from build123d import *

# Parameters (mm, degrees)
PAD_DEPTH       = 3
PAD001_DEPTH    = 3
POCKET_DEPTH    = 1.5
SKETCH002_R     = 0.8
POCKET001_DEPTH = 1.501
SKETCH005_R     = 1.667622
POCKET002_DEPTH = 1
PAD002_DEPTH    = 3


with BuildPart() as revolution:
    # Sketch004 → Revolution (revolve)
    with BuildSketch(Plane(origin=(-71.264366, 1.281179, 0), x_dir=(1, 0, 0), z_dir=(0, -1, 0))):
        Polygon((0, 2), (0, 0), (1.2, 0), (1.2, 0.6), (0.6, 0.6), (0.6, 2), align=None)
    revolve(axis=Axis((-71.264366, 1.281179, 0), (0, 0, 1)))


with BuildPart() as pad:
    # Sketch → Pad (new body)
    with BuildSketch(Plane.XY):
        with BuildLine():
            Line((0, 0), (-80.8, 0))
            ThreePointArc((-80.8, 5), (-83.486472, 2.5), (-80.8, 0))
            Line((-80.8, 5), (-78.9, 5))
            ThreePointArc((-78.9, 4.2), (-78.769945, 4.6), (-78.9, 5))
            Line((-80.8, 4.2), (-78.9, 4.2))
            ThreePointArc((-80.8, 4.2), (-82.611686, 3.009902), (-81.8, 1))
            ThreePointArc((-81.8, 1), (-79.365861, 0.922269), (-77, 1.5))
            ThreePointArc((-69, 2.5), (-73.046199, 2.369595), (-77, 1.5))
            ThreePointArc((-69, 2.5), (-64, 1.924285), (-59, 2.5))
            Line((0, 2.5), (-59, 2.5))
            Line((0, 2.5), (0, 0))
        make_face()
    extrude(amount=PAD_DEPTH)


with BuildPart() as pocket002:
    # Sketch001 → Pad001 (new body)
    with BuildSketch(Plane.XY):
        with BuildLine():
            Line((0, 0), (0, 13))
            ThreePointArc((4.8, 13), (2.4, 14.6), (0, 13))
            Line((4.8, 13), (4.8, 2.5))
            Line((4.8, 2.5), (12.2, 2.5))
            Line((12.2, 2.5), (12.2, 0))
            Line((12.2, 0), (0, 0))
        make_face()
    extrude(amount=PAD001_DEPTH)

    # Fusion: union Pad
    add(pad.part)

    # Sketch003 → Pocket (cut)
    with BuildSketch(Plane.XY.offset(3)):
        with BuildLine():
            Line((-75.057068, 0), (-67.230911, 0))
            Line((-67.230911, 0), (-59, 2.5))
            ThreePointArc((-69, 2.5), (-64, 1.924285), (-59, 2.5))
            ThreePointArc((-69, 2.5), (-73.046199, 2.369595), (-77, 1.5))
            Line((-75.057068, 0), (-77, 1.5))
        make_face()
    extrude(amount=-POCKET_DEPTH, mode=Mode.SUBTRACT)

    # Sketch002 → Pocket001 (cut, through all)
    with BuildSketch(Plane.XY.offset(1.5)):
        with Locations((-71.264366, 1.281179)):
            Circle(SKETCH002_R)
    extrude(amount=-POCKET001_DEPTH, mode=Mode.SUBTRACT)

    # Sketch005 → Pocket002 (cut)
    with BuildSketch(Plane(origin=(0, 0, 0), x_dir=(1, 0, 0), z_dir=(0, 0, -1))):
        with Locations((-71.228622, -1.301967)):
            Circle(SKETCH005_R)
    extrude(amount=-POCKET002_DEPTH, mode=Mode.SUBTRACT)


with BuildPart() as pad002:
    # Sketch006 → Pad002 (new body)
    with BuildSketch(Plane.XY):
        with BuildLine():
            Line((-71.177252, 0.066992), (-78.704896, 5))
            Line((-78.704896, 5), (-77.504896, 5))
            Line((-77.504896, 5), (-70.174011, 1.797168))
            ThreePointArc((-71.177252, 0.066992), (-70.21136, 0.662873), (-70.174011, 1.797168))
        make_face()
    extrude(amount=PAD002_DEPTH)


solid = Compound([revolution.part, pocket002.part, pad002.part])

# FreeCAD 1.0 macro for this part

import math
import FreeCAD as App
import Part
import Sketcher
from FreeCAD import Vector
Q = App.Units.Quantity

doc = App.newDocument("Part")
body = doc.addObject("PartDesign::Body", "Body")

# Sketch on XZ plane
sketch1 = body.newObject("Sketcher::SketchObject", "Sketch")
sketch1.AttachmentSupport = (doc.getObject("XZ_Plane"), [""])
sketch1.MapMode = "FlatFace"
sketch1.AttachmentOffset = App.Placement(Vector(0, 0, -1.281179), App.Rotation())
sketch1.addGeometry([
    Part.LineSegment(Vector(-71.264366, 2, 0), Vector(-71.264366, 0, 0)),  # 0
    Part.LineSegment(Vector(-71.264366, 0, 0), Vector(-70.064366, 0, 0)),  # 1
    Part.LineSegment(Vector(-70.064366, 0, 0), Vector(-70.064366, 0.6, 0)),  # 2
    Part.LineSegment(Vector(-70.064366, 0.6, 0), Vector(-70.664366, 0.6, 0)),  # 3
    Part.LineSegment(Vector(-70.664366, 0.6, 0), Vector(-70.664366, 2, 0)),  # 4
    Part.LineSegment(Vector(-70.664366, 2, 0), Vector(-71.264366, 2, 0)),  # 5
], False)
sketch1.addGeometry(Part.LineSegment(Vector(-71.264366, 0, 0), Vector(-71.264366, 2, 0)), True)  # axis
sketch1.addConstraint([
    Sketcher.Constraint("Coincident", 0, 2, 1, 1),
    Sketcher.Constraint("Coincident", 1, 2, 2, 1),
    Sketcher.Constraint("Coincident", 2, 2, 3, 1),
    Sketcher.Constraint("Coincident", 3, 2, 4, 1),
    Sketcher.Constraint("Coincident", 4, 2, 5, 1),
    Sketcher.Constraint("Coincident", 5, 2, 0, 1),
    Sketcher.Constraint("Vertical", 0),
    Sketcher.Constraint("Horizontal", 1),
    Sketcher.Constraint("Vertical", 2),
    Sketcher.Constraint("Horizontal", 3),
    Sketcher.Constraint("Vertical", 4),
    Sketcher.Constraint("Horizontal", 5),
    Sketcher.Constraint("Vertical", 6),
    Sketcher.Constraint("Coincident", 6, 1, 0, 2),
    Sketcher.Constraint("PointOnObject", 0, 2, -1),
    Sketcher.Constraint("Horizontal", 4, 2, 6, 2),
    Sketcher.Constraint("Equal", 3, 5),
    Sketcher.Constraint("Equal", 5, 2),
    Sketcher.Constraint("DistanceY", 0, 2, 0, 1, Q("2 mm")),
    Sketcher.Constraint("DistanceX", 1, 1, 1, 2, Q("1.2 mm")),
    Sketcher.Constraint("DistanceX", 0, 2, -1, 1, Q("71.264366 mm")),
])
revolution = body.newObject("PartDesign::Revolution", "Revolution")
revolution.Profile = sketch1
revolution.ReferenceAxis = (sketch1, ["Axis0"])
revolution.Angle = 360
body2 = doc.addObject("PartDesign::Body", "Body001")

# Sketch on XY plane
sketch2 = body2.newObject("Sketcher::SketchObject", "Sketch001")
sketch2.AttachmentSupport = (doc.getObject("XY_Plane001"), [""])
sketch2.MapMode = "FlatFace"
sketch2.addGeometry([
    Part.LineSegment(Vector(-80.8, 0, 0), Vector(0, 0, 0)),  # 0
    Part.LineSegment(Vector(0, 0, 0), Vector(0, 2.5, 0)),  # 1
    Part.LineSegment(Vector(0, 2.5, 0), Vector(-59, 2.5, 0)),  # 2
    Part.ArcOfCircle(Part.Circle(Vector(-64, 23.924274, 0), Vector(0, 0, 1), 21.999989), math.radians(-103.136565), math.radians(-76.863435)),  # 3
    Part.ArcOfCircle(Part.Circle(Vector(-70.317435, -19.46052, 0), Vector(0, 0, 1), 22.000001), math.radians(86.56688), math.radians(107.683153)),  # 4
    Part.ArcOfCircle(Part.Circle(Vector(-80.298315, 9.873828, 0), Vector(0, 0, 1), 8.999994), math.radians(-99.604952), math.radians(-68.501322)),  # 5
    Part.ArcOfCircle(Part.Circle(Vector(-80.98, 2.5, 0), Vector(0, 0, 1), 1.709503), math.radians(83.955917), math.radians(241.336034)),  # 6
    Part.LineSegment(Vector(-80.8, 4.2, 0), Vector(-78.9, 4.2, 0)),  # 7
    Part.ArcOfCircle(Part.Circle(Vector(-79.450097, 4.6, 0), Vector(0, 0, 1), 0.680152), math.radians(-36.022574), math.radians(36.022574)),  # 8
    Part.LineSegment(Vector(-78.9, 5, 0), Vector(-80.8, 5, 0)),  # 9
    Part.ArcOfCircle(Part.Circle(Vector(-80.98, 2.5, 0), Vector(0, 0, 1), 2.506472), math.radians(85.881802), math.radians(274.118198)),  # 10
], False)
sketch2.addConstraint([
    Sketcher.Constraint("Coincident", 0, 2, 1, 1),
    Sketcher.Constraint("Coincident", 1, 2, 2, 1),
    Sketcher.Constraint("Coincident", 2, 2, 3, 2),
    Sketcher.Constraint("Coincident", 3, 1, 4, 1),
    Sketcher.Constraint("Coincident", 4, 2, 5, 2),
    Sketcher.Constraint("Coincident", 5, 1, 6, 2),
    Sketcher.Constraint("Coincident", 6, 1, 7, 1),
    Sketcher.Constraint("Coincident", 7, 2, 8, 1),
    Sketcher.Constraint("Coincident", 8, 2, 9, 1),
    Sketcher.Constraint("Coincident", 9, 2, 10, 1),
    Sketcher.Constraint("Coincident", 10, 2, 0, 1),
    Sketcher.Constraint("Horizontal", 0),
    Sketcher.Constraint("Vertical", 1),
    Sketcher.Constraint("Horizontal", 2),
    Sketcher.Constraint("Horizontal", 7),
    Sketcher.Constraint("Horizontal", 9),
    Sketcher.Constraint("Coincident", 0, 2, -1, 1),
    Sketcher.Constraint("Coincident", 10, 3, 6, 3),
    Sketcher.Constraint("Horizontal", 10, 3, 1, 2),
    Sketcher.Constraint("Horizontal", 2, 2, 3, 1),
    Sketcher.Constraint("Vertical", 7, 2, 8, 2),
    Sketcher.Constraint("Vertical", 6, 1, 9, 2),
    Sketcher.Constraint("Vertical", 9, 2, 10, 2),
    Sketcher.Constraint("Radius", 4, Q("22.000001 mm")),
    Sketcher.Constraint("DistanceX", 2, 2, 2, 1, Q("59 mm")),
    Sketcher.Constraint("DistanceX", 0, 1, 0, 2, Q("80.8 mm")),
    Sketcher.Constraint("DistanceX", 7, 1, 7, 2, Q("1.9 mm")),
    Sketcher.Constraint("DistanceY", 1, 1, 1, 2, Q("2.5 mm")),
    Sketcher.Constraint("DistanceX", 3, 3, -1, 1, Q("64 mm")),
    Sketcher.Constraint("DistanceX", 4, 2, -1, 1, Q("77 mm")),
    Sketcher.Constraint("DistanceY", -1, 1, 5, 1, Q("1 mm")),
    Sketcher.Constraint("DistanceY", 4, 2, 6, 3, Q("1 mm")),
    Sketcher.Constraint("DistanceX", 5, 1, 6, 1, Q("1 mm")),
    Sketcher.Constraint("DistanceY", -1, 1, 8, 3, Q("4.6 mm")),
    Sketcher.Constraint("Radius", 3, Q("21.999989 mm")),
    Sketcher.Constraint("Radius", 8, Q("0.680152 mm")),
    Sketcher.Constraint("Radius", 5, Q("8.999994 mm")),
])
pad1 = body2.newObject("PartDesign::Pad", "Pad")
pad1.Profile = sketch2
pad1.Length = 3
body3 = doc.addObject("PartDesign::Body", "Body002")

# Sketch on XY plane
sketch3 = body3.newObject("Sketcher::SketchObject", "Sketch002")
sketch3.AttachmentSupport = (doc.getObject("XY_Plane002"), [""])
sketch3.MapMode = "FlatFace"
sketch3.addGeometry([
    Part.LineSegment(Vector(0, 13, 0), Vector(0, 0, 0)),  # 0
    Part.LineSegment(Vector(0, 0, 0), Vector(12.2, 0, 0)),  # 1
    Part.LineSegment(Vector(12.2, 0, 0), Vector(12.2, 2.5, 0)),  # 2
    Part.LineSegment(Vector(12.2, 2.5, 0), Vector(4.8, 2.5, 0)),  # 3
    Part.LineSegment(Vector(4.8, 2.5, 0), Vector(4.8, 13, 0)),  # 4
    Part.ArcOfCircle(Part.Circle(Vector(2.4, 12, 0), Vector(0, 0, 1), 2.6), math.radians(22.619865), math.radians(157.380135)),  # 5
], False)
sketch3.addConstraint([
    Sketcher.Constraint("Coincident", 0, 2, 1, 1),
    Sketcher.Constraint("Coincident", 1, 2, 2, 1),
    Sketcher.Constraint("Coincident", 2, 2, 3, 1),
    Sketcher.Constraint("Coincident", 3, 2, 4, 1),
    Sketcher.Constraint("Coincident", 4, 2, 5, 1),
    Sketcher.Constraint("Coincident", 5, 2, 0, 1),
    Sketcher.Constraint("Vertical", 0),
    Sketcher.Constraint("Horizontal", 1),
    Sketcher.Constraint("Vertical", 2),
    Sketcher.Constraint("Horizontal", 3),
    Sketcher.Constraint("Vertical", 4),
    Sketcher.Constraint("Coincident", 0, 2, -1, 1),
    Sketcher.Constraint("Horizontal", 4, 2, 5, 2),
    Sketcher.Constraint("Radius", 5, Q("2.6 mm")),
    Sketcher.Constraint("DistanceY", 0, 2, 0, 1, Q("13 mm")),
    Sketcher.Constraint("DistanceX", 1, 1, 1, 2, Q("12.2 mm")),
    Sketcher.Constraint("DistanceX", 3, 2, 3, 1, Q("7.4 mm")),
    Sketcher.Constraint("DistanceY", 2, 1, 2, 2, Q("2.5 mm")),
])
pad2 = body3.newObject("PartDesign::Pad", "Pad001")
pad2.Profile = sketch3
pad2.Length = 3
doc.recompute()

boolean = body3.newObject("PartDesign::Boolean", "Boolean")
boolean.Type = "Fuse"
boolean.addObjects([body2])

# Sketch on XY plane
sketch4 = body3.newObject("Sketcher::SketchObject", "Sketch003")
sketch4.AttachmentSupport = (doc.getObject("XY_Plane002"), [""])
sketch4.MapMode = "FlatFace"
sketch4.AttachmentOffset = App.Placement(Vector(0, 0, 3), App.Rotation())
sketch4.addGeometry([
    Part.LineSegment(Vector(-75.057068, 0, 0), Vector(-67.230911, 0, 0)),  # 0
    Part.LineSegment(Vector(-67.230911, 0, 0), Vector(-59, 2.5, 0)),  # 1
    Part.ArcOfCircle(Part.Circle(Vector(-64, 23.924274, 0), Vector(0, 0, 1), 21.999989), math.radians(-103.136565), math.radians(-76.863435)),  # 2
    Part.ArcOfCircle(Part.Circle(Vector(-70.317435, -19.46052, 0), Vector(0, 0, 1), 22.000001), math.radians(86.56688), math.radians(107.683153)),  # 3
    Part.LineSegment(Vector(-77, 1.5, 0), Vector(-75.057068, 0, 0)),  # 4
], False)
sketch4.addConstraint([
    Sketcher.Constraint("Coincident", 0, 2, 1, 1),
    Sketcher.Constraint("Coincident", 1, 2, 2, 2),
    Sketcher.Constraint("Coincident", 2, 1, 3, 1),
    Sketcher.Constraint("Coincident", 3, 2, 4, 1),
    Sketcher.Constraint("Coincident", 4, 2, 0, 1),
    Sketcher.Constraint("Horizontal", 0),
    Sketcher.Constraint("PointOnObject", 0, 2, -1),
    Sketcher.Constraint("Horizontal", 1, 2, 2, 1),
    Sketcher.Constraint("Radius", 3, Q("22.000001 mm")),
    Sketcher.Constraint("DistanceX", 2, 3, -1, 1, Q("64 mm")),
    Sketcher.Constraint("DistanceX", 1, 2, -1, 1, Q("59 mm")),
    Sketcher.Constraint("DistanceX", 3, 2, -1, 1, Q("77 mm")),
    Sketcher.Constraint("DistanceY", 3, 2, 2, 1, Q("1 mm")),
    Sketcher.Constraint("DistanceY", -1, 1, 1, 2, Q("2.5 mm")),
    Sketcher.Constraint("Radius", 2, Q("21.999989 mm")),
    Sketcher.Constraint("DistanceX", 0, 1, 0, 2, Q("7.826157 mm")),
    Sketcher.Constraint("DistanceX", 0, 2, -1, 1, Q("67.230911 mm")),
])
pocket1 = body3.newObject("PartDesign::Pocket", "Pocket")
pocket1.Profile = sketch4
pocket1.Length = 1.5

# Sketch on XY plane
sketch5 = body3.newObject("Sketcher::SketchObject", "Sketch004")
sketch5.AttachmentSupport = (doc.getObject("XY_Plane002"), [""])
sketch5.MapMode = "FlatFace"
sketch5.AttachmentOffset = App.Placement(Vector(0, 0, 1.5), App.Rotation())
sketch5.addGeometry(Part.Circle(Vector(-71.264366, 1.281179, 0), Vector(0, 0, 1), 0.8), False)
sketch5.addConstraint([
    Sketcher.Constraint("Diameter", 0, Q("1.6 mm")),
    Sketcher.Constraint("DistanceY", -1, 1, 0, 3, Q("1.281179 mm")),
    Sketcher.Constraint("DistanceX", 0, 3, -1, 1, Q("71.264366 mm")),
])
pocket2 = body3.newObject("PartDesign::Pocket", "Pocket001")
pocket2.Profile = sketch5
pocket2.Type = "ThroughAll"

# Sketch on XY plane
sketch6 = body3.newObject("Sketcher::SketchObject", "Sketch005")
sketch6.AttachmentSupport = (doc.getObject("XY_Plane002"), [""])
sketch6.MapMode = "FlatFace"
sketch6.addGeometry(Part.Circle(Vector(-71.228622, 1.301967, 0), Vector(0, 0, 1), 1.667622), False)
sketch6.addConstraint([
    Sketcher.Constraint("Diameter", 0, Q("3.335244 mm")),
    Sketcher.Constraint("DistanceX", 0, 3, -1, 1, Q("71.228622 mm")),
    Sketcher.Constraint("DistanceY", -1, 1, 0, 3, Q("1.301967 mm")),
])
pocket3 = body3.newObject("PartDesign::Pocket", "Pocket002")
pocket3.Profile = sketch6
pocket3.Length = 1
pocket3.Reversed = True
body4 = doc.addObject("PartDesign::Body", "Body003")

# Sketch on XY plane
sketch7 = body4.newObject("Sketcher::SketchObject", "Sketch006")
sketch7.AttachmentSupport = (doc.getObject("XY_Plane003"), [""])
sketch7.MapMode = "FlatFace"
sketch7.addGeometry([
    Part.LineSegment(Vector(-78.704896, 5, 0), Vector(-71.177252, 0.066992, 0)),
    Part.ArcOfCircle(Part.Circle(Vector(-71.249466, 1.264817, 0), Vector(0, 0, 1), 1.2), math.radians(-86.549972), math.radians(26.335446)),
    Part.LineSegment(Vector(-70.174011, 1.797168, 0), Vector(-77.504896, 5, 0)),
    Part.LineSegment(Vector(-77.504896, 5, 0), Vector(-78.704896, 5, 0)),
], False)
sketch7.addConstraint([
    Sketcher.Constraint("Coincident", 0, 2, 1, 1),
    Sketcher.Constraint("Coincident", 1, 2, 2, 1),
    Sketcher.Constraint("Coincident", 2, 2, 3, 1),
    Sketcher.Constraint("Coincident", 3, 2, 0, 1),
    Sketcher.Constraint("Horizontal", 3),
    Sketcher.Constraint("Radius", 1, Q("1.2 mm")),
    Sketcher.Constraint("Distance", 0, Q("9 mm")),
    Sketcher.Constraint("Distance", 2, Q("8 mm")),
    Sketcher.Constraint("DistanceX", 3, 2, 3, 1, Q("1.2 mm")),
    Sketcher.Constraint("DistanceY", -1, 1, 2, 2, Q("5 mm")),
    Sketcher.Constraint("DistanceX", 0, 2, -1, 1, Q("71.177252 mm")),
    Sketcher.Constraint("DistanceX", 1, 2, -1, 1, Q("70.174011 mm")),
    Sketcher.Constraint("DistanceY", -1, 1, 1, 2, Q("1.797168 mm")),
])
pad3 = body4.newObject("PartDesign::Pad", "Pad002")
pad3.Profile = sketch7
pad3.Length = 3

doc.recompute()
